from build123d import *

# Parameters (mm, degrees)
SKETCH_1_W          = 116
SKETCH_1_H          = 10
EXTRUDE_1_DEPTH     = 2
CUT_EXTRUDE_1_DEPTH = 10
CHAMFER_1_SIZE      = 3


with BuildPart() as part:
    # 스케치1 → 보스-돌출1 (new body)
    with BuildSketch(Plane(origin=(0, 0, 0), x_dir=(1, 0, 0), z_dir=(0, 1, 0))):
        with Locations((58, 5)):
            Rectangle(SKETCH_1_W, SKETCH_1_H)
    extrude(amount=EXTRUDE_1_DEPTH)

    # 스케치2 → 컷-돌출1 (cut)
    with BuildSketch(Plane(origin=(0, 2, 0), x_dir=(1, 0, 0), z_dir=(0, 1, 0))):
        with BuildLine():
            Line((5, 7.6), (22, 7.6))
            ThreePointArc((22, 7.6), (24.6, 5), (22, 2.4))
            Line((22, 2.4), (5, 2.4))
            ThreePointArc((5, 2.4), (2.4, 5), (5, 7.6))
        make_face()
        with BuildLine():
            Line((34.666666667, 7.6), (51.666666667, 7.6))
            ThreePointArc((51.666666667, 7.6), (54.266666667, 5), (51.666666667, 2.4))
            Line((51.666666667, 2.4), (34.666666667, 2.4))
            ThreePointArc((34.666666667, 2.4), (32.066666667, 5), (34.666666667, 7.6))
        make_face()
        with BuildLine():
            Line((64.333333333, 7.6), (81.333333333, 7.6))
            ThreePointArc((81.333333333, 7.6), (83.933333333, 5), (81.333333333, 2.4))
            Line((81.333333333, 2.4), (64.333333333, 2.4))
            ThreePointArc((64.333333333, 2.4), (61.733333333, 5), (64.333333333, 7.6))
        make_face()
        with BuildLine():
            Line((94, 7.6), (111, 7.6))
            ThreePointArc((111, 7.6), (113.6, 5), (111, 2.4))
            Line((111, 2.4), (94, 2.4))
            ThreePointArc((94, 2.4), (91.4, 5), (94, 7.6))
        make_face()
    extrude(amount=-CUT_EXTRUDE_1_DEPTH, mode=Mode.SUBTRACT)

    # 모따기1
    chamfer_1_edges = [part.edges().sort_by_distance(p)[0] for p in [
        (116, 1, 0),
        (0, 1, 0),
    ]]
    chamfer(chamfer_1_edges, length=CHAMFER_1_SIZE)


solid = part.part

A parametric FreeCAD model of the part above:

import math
import FreeCAD as App
import Part
import Sketcher


def edges_at(feature, points):
    """Names of the edges that pass closest to the given points."""
    edges = feature.Shape.Edges
    near = lambda p: min(range(len(edges)), key=lambda i: edges[i].distToShape(Part.Vertex(*p))[0])
    return sorted({f"Edge{near(p) + 1}" for p in points})


def add_polygon(sketch, points):
    """Adds a closed chain of lines whose ends are joined by coincident constraints."""
    first, n = sketch.GeometryCount, len(points)
    for a, b in zip(points, points[1:] + points[:1]):
        sketch.addGeometry(Part.LineSegment(App.Vector(*a, 0), App.Vector(*b, 0)), False)
    for i in range(n):
        sketch.addConstraint(Sketcher.Constraint("Coincident", first + i, 2, first + (i + 1) % n, 1))

doc = App.newDocument("Part")
body = doc.addObject("PartDesign::Body", "Body")

sketch1 = body.newObject("Sketcher::SketchObject", "Sketch")
sketch1.AttachmentSupport = (doc.getObject("XZ_Plane"), [""])
sketch1.MapMode = "FlatFace"
add_polygon(sketch1, [(0, -10), (0, 0), (116, 0), (116, -10)])
sketch1.addConstraint([
    Sketcher.Constraint("Vertical", 0),
    Sketcher.Constraint("Horizontal", 1),
    Sketcher.Constraint("Vertical", 2),
    Sketcher.Constraint("Horizontal", 3),
    Sketcher.Constraint("Coincident", 0, 2, -1, 1),
    Sketcher.Constraint("DistanceX", 1, 1, 1, 2, 116.0),
    Sketcher.Constraint("DistanceY", 0, 1, 0, 2, 10.0),
])
pad1 = body.newObject("PartDesign::Pad", "Pad")
pad1.Profile = sketch1
pad1.Length = 2
pad1.Reversed = True

sketch2 = body.newObject("Sketcher::SketchObject", "Sketch001")
sketch2.AttachmentSupport = (doc.getObject("XZ_Plane"), [""])
sketch2.MapMode = "FlatFace"
sketch2.AttachmentOffset = App.Placement(App.Vector(0, 0, -2), App.Rotation())
sketch2.addGeometry([
    Part.LineSegment(App.Vector(22, -7.6, 0), App.Vector(5, -7.6, 0)),
    Part.ArcOfCircle(Part.Circle(App.Vector(5, -5, 0), App.Vector(0, 0, 1), 2.6), math.radians(90), math.radians(270)),
    Part.LineSegment(App.Vector(5, -2.4, 0), App.Vector(22, -2.4, 0)),
    Part.ArcOfCircle(Part.Circle(App.Vector(22, -5, 0), App.Vector(0, 0, 1), 2.6), math.radians(-90), math.radians(90)),
    Part.LineSegment(App.Vector(51.7, -7.6, 0), App.Vector(34.7, -7.6, 0)),
    Part.ArcOfCircle(Part.Circle(App.Vector(34.7, -5, 0), App.Vector(0, 0, 1), 2.6), math.radians(90), math.radians(270)),
    Part.LineSegment(App.Vector(34.7, -2.4, 0), App.Vector(51.7, -2.4, 0)),
    Part.ArcOfCircle(Part.Circle(App.Vector(51.7, -5, 0), App.Vector(0, 0, 1), 2.6), math.radians(-90), math.radians(90)),
    Part.LineSegment(App.Vector(81.3, -7.6, 0), App.Vector(64.3, -7.6, 0)),
    Part.ArcOfCircle(Part.Circle(App.Vector(64.3, -5, 0), App.Vector(0, 0, 1), 2.6), math.radians(90), math.radians(270)),
    Part.LineSegment(App.Vector(64.3, -2.4, 0), App.Vector(81.3, -2.4, 0)),
    Part.ArcOfCircle(Part.Circle(App.Vector(81.3, -5, 0), App.Vector(0, 0, 1), 2.6), math.radians(-90), math.radians(90)),
    Part.LineSegment(App.Vector(111, -7.6, 0), App.Vector(94, -7.6, 0)),
    Part.ArcOfCircle(Part.Circle(App.Vector(94, -5, 0), App.Vector(0, 0, 1), 2.6), math.radians(90), math.radians(270)),
    Part.LineSegment(App.Vector(94, -2.4, 0), App.Vector(111, -2.4, 0)),
    Part.ArcOfCircle(Part.Circle(App.Vector(111, -5, 0), App.Vector(0, 0, 1), 2.6), math.radians(-90), math.radians(90)),
], False)
sketch2.addConstraint([
    Sketcher.Constraint("Tangent", 0, 2, 1, 2),
    Sketcher.Constraint("Tangent", 1, 1, 2, 1),
    Sketcher.Constraint("Tangent", 2, 2, 3, 2),
    Sketcher.Constraint("Tangent", 3, 1, 0, 1),
    Sketcher.Constraint("Tangent", 4, 2, 5, 2),
    Sketcher.Constraint("Tangent", 5, 1, 6, 1),
    Sketcher.Constraint("Tangent", 6, 2, 7, 2),
    Sketcher.Constraint("Tangent", 7, 1, 4, 1),
    Sketcher.Constraint("Tangent", 8, 2, 9, 2),
    Sketcher.Constraint("Tangent", 9, 1, 10, 1),
    Sketcher.Constraint("Tangent", 10, 2, 11, 2),
    Sketcher.Constraint("Tangent", 11, 1, 8, 1),
    Sketcher.Constraint("Tangent", 12, 2, 13, 2),
    Sketcher.Constraint("Tangent", 13, 1, 14, 1),
    Sketcher.Constraint("Tangent", 14, 2, 15, 2),
    Sketcher.Constraint("Tangent", 15, 1, 12, 1),
    Sketcher.Constraint("Horizontal", 0),
    Sketcher.Constraint("Horizontal", 2),
    Sketcher.Constraint("Horizontal", 4),
    Sketcher.Constraint("Horizontal", 6),
    Sketcher.Constraint("Horizontal", 8),
    Sketcher.Constraint("Horizontal", 10),
    Sketcher.Constraint("Horizontal", 12),
    Sketcher.Constraint("Horizontal", 14),
    Sketcher.Constraint("Equal", 3, 5),
    Sketcher.Constraint("Equal", 7, 9),
    Sketcher.Constraint("Equal", 11, 13),
    Sketcher.Constraint("Horizontal", 3, 3, 5, 3),
    Sketcher.Constraint("Horizontal", 7, 3, 9, 3),
    Sketcher.Constraint("Horizontal", 11, 3, 13, 3),
    Sketcher.Constraint("Equal", 2, 4),
    Sketcher.Constraint("Equal", 6, 8),
    Sketcher.Constraint("Equal", 10, 12),
    Sketcher.Constraint("Radius", 1, 2.6),
    Sketcher.Constraint("DistanceX", 0, 2, 0, 1, 17.0),
    Sketcher.Constraint("DistanceX", -1, 1, 1, 3, 5.0),
    Sketcher.Constraint("DistanceY", 1, 3, -1, 1, 5.0),
    Sketcher.Constraint("DistanceX", -1, 1, 13, 3, 94.0),
    Sketcher.Constraint("DistanceX", -1, 1, 5, 3, 34.666667),
    Sketcher.Constraint("DistanceX", -1, 1, 9, 3, 64.333333),
])
pocket1 = body.newObject("PartDesign::Pocket", "Pocket")
pocket1.Profile = sketch2
pocket1.Length = 10
pocket1.Reversed = True
doc.recompute()

chamfer = body.newObject("PartDesign::Chamfer", "Chamfer")
chamfer.Base = (pocket1, edges_at(pocket1, [(116, 1, 0), (0, 1, 0)]))
chamfer.Size = 3

doc.recompute()
